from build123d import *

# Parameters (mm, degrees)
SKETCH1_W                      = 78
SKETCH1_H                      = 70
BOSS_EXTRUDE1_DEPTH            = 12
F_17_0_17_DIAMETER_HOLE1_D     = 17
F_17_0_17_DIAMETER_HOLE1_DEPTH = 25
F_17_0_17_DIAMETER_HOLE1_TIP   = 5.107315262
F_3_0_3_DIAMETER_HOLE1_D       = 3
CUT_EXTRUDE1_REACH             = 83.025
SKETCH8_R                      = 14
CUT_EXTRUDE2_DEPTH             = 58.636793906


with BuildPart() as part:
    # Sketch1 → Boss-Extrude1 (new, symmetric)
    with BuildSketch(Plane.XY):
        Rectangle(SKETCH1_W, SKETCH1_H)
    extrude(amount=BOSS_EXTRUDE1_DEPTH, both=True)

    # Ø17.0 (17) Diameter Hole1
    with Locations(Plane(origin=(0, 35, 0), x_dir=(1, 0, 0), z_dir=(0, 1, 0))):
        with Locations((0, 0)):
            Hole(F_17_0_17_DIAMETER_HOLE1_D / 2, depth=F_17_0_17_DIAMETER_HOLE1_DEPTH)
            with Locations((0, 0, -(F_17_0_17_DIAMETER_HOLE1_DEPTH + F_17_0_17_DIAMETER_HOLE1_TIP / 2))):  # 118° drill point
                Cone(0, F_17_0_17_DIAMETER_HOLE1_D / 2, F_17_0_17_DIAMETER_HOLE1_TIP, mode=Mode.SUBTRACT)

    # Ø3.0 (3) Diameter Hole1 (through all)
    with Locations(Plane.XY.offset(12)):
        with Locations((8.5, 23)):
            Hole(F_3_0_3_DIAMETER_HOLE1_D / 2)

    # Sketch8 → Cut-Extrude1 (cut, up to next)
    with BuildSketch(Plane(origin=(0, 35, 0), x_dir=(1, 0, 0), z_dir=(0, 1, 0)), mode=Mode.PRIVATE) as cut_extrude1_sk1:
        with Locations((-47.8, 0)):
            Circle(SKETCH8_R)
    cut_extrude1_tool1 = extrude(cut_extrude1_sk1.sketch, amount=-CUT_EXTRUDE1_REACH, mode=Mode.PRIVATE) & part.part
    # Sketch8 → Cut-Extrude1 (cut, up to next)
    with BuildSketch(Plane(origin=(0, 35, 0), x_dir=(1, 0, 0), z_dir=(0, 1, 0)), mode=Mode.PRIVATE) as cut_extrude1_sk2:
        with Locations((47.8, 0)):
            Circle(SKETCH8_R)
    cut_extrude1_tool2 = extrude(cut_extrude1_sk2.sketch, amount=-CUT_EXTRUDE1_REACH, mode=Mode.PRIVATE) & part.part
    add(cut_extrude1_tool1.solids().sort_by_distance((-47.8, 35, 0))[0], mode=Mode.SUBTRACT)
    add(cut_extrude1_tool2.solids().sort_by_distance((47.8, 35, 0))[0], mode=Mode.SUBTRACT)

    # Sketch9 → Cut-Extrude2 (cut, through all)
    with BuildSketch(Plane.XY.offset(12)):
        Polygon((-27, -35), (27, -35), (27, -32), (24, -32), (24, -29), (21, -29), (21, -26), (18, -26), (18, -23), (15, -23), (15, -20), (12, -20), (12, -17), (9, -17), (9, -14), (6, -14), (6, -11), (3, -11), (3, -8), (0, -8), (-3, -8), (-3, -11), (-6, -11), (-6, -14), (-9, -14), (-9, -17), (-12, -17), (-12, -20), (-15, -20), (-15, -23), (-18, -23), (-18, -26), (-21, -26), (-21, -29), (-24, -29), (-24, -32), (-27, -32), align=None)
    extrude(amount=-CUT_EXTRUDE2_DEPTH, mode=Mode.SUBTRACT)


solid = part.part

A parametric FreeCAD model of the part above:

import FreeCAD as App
import Part
import Sketcher
from FreeCAD import Vector
Q = App.Units.Quantity

doc = App.newDocument("Part")
params = doc.addObject("Spreadsheet::Sheet", "Params")
for row, (alias, value) in enumerate([
    ("sketch1_width", "78 mm"),
    ("sketch1_height", "70 mm"),
    ("pad1_length", "24 mm"),
    ("sketch2_diameter", "17 mm"),
    ("hole_diameter", "17 mm"),
    ("hole_depth", "25 mm"),
    ("sketch3_diameter", "3 mm"),
    ("hole2_diameter", "3 mm"),
    ("sketch4_diameter", "28 mm"),
    ("pocket1_length", "70 mm"),
    ("sketch5_diameter", "28 mm"),
    ("pocket2_length", "70 mm"),
    ("sketch6_width", "54 mm"),
    ("sketch6_width2", "3 mm"),
], start=1):
    params.set(f"A{row}", alias)
    params.set(f"B{row}", "=" + value)
    params.setAlias(f"B{row}", alias)

body = doc.addObject("PartDesign::Body", "Body")

sketch1 = body.newObject("Sketcher::SketchObject", "Sketch")
sketch1.AttachmentSupport = (doc.getObject("XY_Plane"), [""])
sketch1.MapMode = "FlatFace"
sketch1.addGeometry([
    Part.LineSegment(Vector(-39, 35, 0), Vector(-39, -35, 0)),
    Part.LineSegment(Vector(-39, -35, 0), Vector(39, -35, 0)),
    Part.LineSegment(Vector(39, -35, 0), Vector(39, 35, 0)),
    Part.LineSegment(Vector(39, 35, 0), Vector(-39, 35, 0)),
], False)
sketch1.addConstraint([
    Sketcher.Constraint("Coincident", 0, 2, 1, 1),
    Sketcher.Constraint("Coincident", 1, 2, 2, 1),
    Sketcher.Constraint("Coincident", 2, 2, 3, 1),
    Sketcher.Constraint("Coincident", 3, 2, 0, 1),
    Sketcher.Constraint("Vertical", 0),
    Sketcher.Constraint("Horizontal", 1),
    Sketcher.Constraint("Vertical", 2),
    Sketcher.Constraint("Horizontal", 3),
    Sketcher.Constraint("Symmetric", 0, 2, 2, 2, -1, 1),
    Sketcher.Constraint("DistanceX", 1, 1, 1, 2, Q("78 mm")),
    Sketcher.Constraint("DistanceY", 0, 2, 0, 1, Q("70 mm")),
])
sketch1.setExpression("Constraints[9]", "Params.sketch1_width")
sketch1.setExpression("Constraints[10]", "Params.sketch1_height")
pad1 = body.newObject("PartDesign::Pad", "Pad")
pad1.Profile = sketch1
pad1.setExpression("Length", "Params.pad1_length")
pad1.Midplane = True

sketch2 = body.newObject("Sketcher::SketchObject", "Sketch001")
sketch2.AttachmentSupport = (doc.getObject("XZ_Plane"), [""])
sketch2.MapMode = "FlatFace"
sketch2.AttachmentOffset = App.Placement(Vector(0, 0, -35), App.Rotation())
sketch2.addGeometry(Part.Circle(Vector(0, 0, 0), Vector(0, 0, 1), 8), False)
sketch2.addConstraint([
    Sketcher.Constraint("Coincident", 0, 3, -1, 1),
    Sketcher.Constraint("Diameter", 0, Q("17 mm")),
])
sketch2.setExpression("Constraints[1]", "Params.sketch2_diameter")
doc.recompute()
hole = body.newObject("PartDesign::Hole", "Hole")
hole.Profile = sketch2
hole.ThreadType = "None"
hole.setExpression("Diameter", "Params.hole_diameter")
hole.DepthType = "Dimension"
hole.setExpression("Depth", "Params.hole_depth")
hole.DrillPoint = "Angled"
hole.DrillPointAngle = 118
hole.Reversed = True

sketch3 = body.newObject("Sketcher::SketchObject", "Sketch002")
sketch3.AttachmentSupport = (doc.getObject("XY_Plane"), [""])
sketch3.MapMode = "FlatFace"
sketch3.AttachmentOffset = App.Placement(Vector(0, 0, 12), App.Rotation())
sketch3.addGeometry(Part.Circle(Vector(8.5, 23, 0), Vector(0, 0, 1), 1.5), False)
sketch3.addConstraint([
    Sketcher.Constraint("Diameter", 0, Q("3 mm")),
    Sketcher.Constraint("DistanceY", -1, 1, 0, 3, Q("23 mm")),
    Sketcher.Constraint("DistanceX", -1, 1, 0, 3, Q("8.5 mm")),
])
sketch3.setExpression("Constraints[0]", "Params.sketch3_diameter")
doc.recompute()
hole2 = body.newObject("PartDesign::Hole", "Hole001")
hole2.Profile = sketch3
hole2.ThreadType = "None"
hole2.setExpression("Diameter", "Params.hole2_diameter")
hole2.DepthType = "ThroughAll"

sketch4 = body.newObject("Sketcher::SketchObject", "Sketch003")
sketch4.AttachmentSupport = (doc.getObject("XZ_Plane"), [""])
sketch4.MapMode = "FlatFace"
sketch4.AttachmentOffset = App.Placement(Vector(0, 0, -35), App.Rotation())
sketch4.addGeometry(Part.Circle(Vector(-48, 0, 0), Vector(0, 0, 1), 14), False)
sketch4.addConstraint([
    Sketcher.Constraint("PointOnObject", 0, 3, -1),
    Sketcher.Constraint("Diameter", 0, Q("28 mm")),
    Sketcher.Constraint("DistanceX", 0, 3, -1, 1, Q("47.8 mm")),
])
sketch4.setExpression("Constraints[1]", "Params.sketch4_diameter")
pocket1 = body.newObject("PartDesign::Pocket", "Pocket")
pocket1.Profile = sketch4
pocket1.setExpression("Length", "Params.pocket1_length")
pocket1.Reversed = True

sketch5 = body.newObject("Sketcher::SketchObject", "Sketch004")
sketch5.AttachmentSupport = (doc.getObject("XZ_Plane"), [""])
sketch5.MapMode = "FlatFace"
sketch5.AttachmentOffset = App.Placement(Vector(0, 0, -35), App.Rotation())
sketch5.addGeometry(Part.Circle(Vector(48, 0, 0), Vector(0, 0, 1), 14), False)
sketch5.addConstraint([
    Sketcher.Constraint("PointOnObject", 0, 3, -1),
    Sketcher.Constraint("Diameter", 0, Q("28 mm")),
    Sketcher.Constraint("DistanceX", -1, 1, 0, 3, Q("47.8 mm")),
])
sketch5.setExpression("Constraints[1]", "Params.sketch5_diameter")
pocket2 = body.newObject("PartDesign::Pocket", "Pocket001")
pocket2.Profile = sketch5
pocket2.setExpression("Length", "Params.pocket2_length")
pocket2.Reversed = True

sketch6 = body.newObject("Sketcher::SketchObject", "Sketch005")
sketch6.AttachmentSupport = (doc.getObject("XY_Plane"), [""])
sketch6.MapMode = "FlatFace"
sketch6.AttachmentOffset = App.Placement(Vector(0, 0, 12), App.Rotation())
sketch6.addGeometry([
    Part.LineSegment(Vector(-27, -35, 0), Vector(27, -35, 0)),
    Part.LineSegment(Vector(27, -35, 0), Vector(27, -32, 0)),
    Part.LineSegment(Vector(27, -32, 0), Vector(24, -32, 0)),
    Part.LineSegment(Vector(24, -32, 0), Vector(24, -29, 0)),
    Part.LineSegment(Vector(24, -29, 0), Vector(21, -29, 0)),
    Part.LineSegment(Vector(21, -29, 0), Vector(21, -26, 0)),
    Part.LineSegment(Vector(21, -26, 0), Vector(18, -26, 0)),
    Part.LineSegment(Vector(18, -26, 0), Vector(18, -23, 0)),
    Part.LineSegment(Vector(18, -23, 0), Vector(15, -23, 0)),
    Part.LineSegment(Vector(15, -23, 0), Vector(15, -20, 0)),
    Part.LineSegment(Vector(15, -20, 0), Vector(12, -20, 0)),
    Part.LineSegment(Vector(12, -20, 0), Vector(12, -17, 0)),
    Part.LineSegment(Vector(12, -17, 0), Vector(9, -17, 0)),
    Part.LineSegment(Vector(9, -17, 0), Vector(9, -14, 0)),
    Part.LineSegment(Vector(9, -14, 0), Vector(6, -14, 0)),
    Part.LineSegment(Vector(6, -14, 0), Vector(6, -11, 0)),
    Part.LineSegment(Vector(6, -11, 0), Vector(3, -11, 0)),
    Part.LineSegment(Vector(3, -11, 0), Vector(3, -8, 0)),
    Part.LineSegment(Vector(3, -8, 0), Vector(-3, -8, 0)),
    Part.LineSegment(Vector(-3, -8, 0), Vector(-3, -11, 0)),
    Part.LineSegment(Vector(-3, -11, 0), Vector(-6, -11, 0)),
    Part.LineSegment(Vector(-6, -11, 0), Vector(-6, -14, 0)),
    Part.LineSegment(Vector(-6, -14, 0), Vector(-9, -14, 0)),
    Part.LineSegment(Vector(-9, -14, 0), Vector(-9, -17, 0)),
    Part.LineSegment(Vector(-9, -17, 0), Vector(-12, -17, 0)),
    Part.LineSegment(Vector(-12, -17, 0), Vector(-12, -20, 0)),
    Part.LineSegment(Vector(-12, -20, 0), Vector(-15, -20, 0)),
    Part.LineSegment(Vector(-15, -20, 0), Vector(-15, -23, 0)),
    Part.LineSegment(Vector(-15, -23, 0), Vector(-18, -23, 0)),
    Part.LineSegment(Vector(-18, -23, 0), Vector(-18, -26, 0)),
    Part.LineSegment(Vector(-18, -26, 0), Vector(-21, -26, 0)),
    Part.LineSegment(Vector(-21, -26, 0), Vector(-21, -29, 0)),
    Part.LineSegment(Vector(-21, -29, 0), Vector(-24, -29, 0)),
    Part.LineSegment(Vector(-24, -29, 0), Vector(-24, -32, 0)),
    Part.LineSegment(Vector(-24, -32, 0), Vector(-27, -32, 0)),
    Part.LineSegment(Vector(-27, -32, 0), Vector(-27, -35, 0)),
], False)
sketch6.addConstraint([
    Sketcher.Constraint("Coincident", 0, 2, 1, 1),
    Sketcher.Constraint("Coincident", 1, 2, 2, 1),
    Sketcher.Constraint("Coincident", 2, 2, 3, 1),
    Sketcher.Constraint("Coincident", 3, 2, 4, 1),
    Sketcher.Constraint("Coincident", 4, 2, 5, 1),
    Sketcher.Constraint("Coincident", 5, 2, 6, 1),
    Sketcher.Constraint("Coincident", 6, 2, 7, 1),
    Sketcher.Constraint("Coincident", 7, 2, 8, 1),
    Sketcher.Constraint("Coincident", 8, 2, 9, 1),
    Sketcher.Constraint("Coincident", 9, 2, 10, 1),
    Sketcher.Constraint("Coincident", 10, 2, 11, 1),
    Sketcher.Constraint("Coincident", 11, 2, 12, 1),
    Sketcher.Constraint("Coincident", 12, 2, 13, 1),
    Sketcher.Constraint("Coincident", 13, 2, 14, 1),
    Sketcher.Constraint("Coincident", 14, 2, 15, 1),
    Sketcher.Constraint("Coincident", 15, 2, 16, 1),
    Sketcher.Constraint("Coincident", 16, 2, 17, 1),
    Sketcher.Constraint("Coincident", 17, 2, 18, 1),
    Sketcher.Constraint("Coincident", 18, 2, 19, 1),
    Sketcher.Constraint("Coincident", 19, 2, 20, 1),
    Sketcher.Constraint("Coincident", 20, 2, 21, 1),
    Sketcher.Constraint("Coincident", 21, 2, 22, 1),
    Sketcher.Constraint("Coincident", 22, 2, 23, 1),
    Sketcher.Constraint("Coincident", 23, 2, 24, 1),
    Sketcher.Constraint("Coincident", 24, 2, 25, 1),
    Sketcher.Constraint("Coincident", 25, 2, 26, 1),
    Sketcher.Constraint("Coincident", 26, 2, 27, 1),
    Sketcher.Constraint("Coincident", 27, 2, 28, 1),
    Sketcher.Constraint("Coincident", 28, 2, 29, 1),
    Sketcher.Constraint("Coincident", 29, 2, 30, 1),
    Sketcher.Constraint("Coincident", 30, 2, 31, 1),
    Sketcher.Constraint("Coincident", 31, 2, 32, 1),
    Sketcher.Constraint("Coincident", 32, 2, 33, 1),
    Sketcher.Constraint("Coincident", 33, 2, 34, 1),
    Sketcher.Constraint("Coincident", 34, 2, 35, 1),
    Sketcher.Constraint("Coincident", 35, 2, 0, 1),
    Sketcher.Constraint("Horizontal", 0),
    Sketcher.Constraint("Vertical", 1),
    Sketcher.Constraint("Horizontal", 2),
    Sketcher.Constraint("Vertical", 3),
    Sketcher.Constraint("Horizontal", 4),
    Sketcher.Constraint("Vertical", 5),
    Sketcher.Constraint("Horizontal", 6),
    Sketcher.Constraint("Vertical", 7),
    Sketcher.Constraint("Horizontal", 8),
    Sketcher.Constraint("Vertical", 9),
    Sketcher.Constraint("Horizontal", 10),
    Sketcher.Constraint("Vertical", 11),
    Sketcher.Constraint("Horizontal", 12),
    Sketcher.Constraint("Vertical", 13),
    Sketcher.Constraint("Horizontal", 14),
    Sketcher.Constraint("Vertical", 15),
    Sketcher.Constraint("Horizontal", 16),
    Sketcher.Constraint("Vertical", 17),
    Sketcher.Constraint("Horizontal", 18),
    Sketcher.Constraint("Vertical", 19),
    Sketcher.Constraint("Horizontal", 20),
    Sketcher.Constraint("Vertical", 21),
    Sketcher.Constraint("Horizontal", 22),
    Sketcher.Constraint("Vertical", 23),
    Sketcher.Constraint("Horizontal", 24),
    Sketcher.Constraint("Vertical", 25),
    Sketcher.Constraint("Horizontal", 26),
    Sketcher.Constraint("Vertical", 27),
    Sketcher.Constraint("Horizontal", 28),
    Sketcher.Constraint("Vertical", 29),
    Sketcher.Constraint("Horizontal", 30),
    Sketcher.Constraint("Vertical", 31),
    Sketcher.Constraint("Horizontal", 32),
    Sketcher.Constraint("Vertical", 33),
    Sketcher.Constraint("Horizontal", 34),
    Sketcher.Constraint("Vertical", 35),
    Sketcher.Constraint("Symmetric", 16, 2, 19, 2, -2),
    Sketcher.Constraint("Symmetric", 14, 2, 21, 2, -2),
    Sketcher.Constraint("Symmetric", 12, 2, 23, 2, -2),
    Sketcher.Constraint("Symmetric", 10, 2, 25, 2, -2),
    Sketcher.Constraint("Symmetric", 8, 2, 27, 2, -2),
    Sketcher.Constraint("Symmetric", 6, 2, 29, 2, -2),
    Sketcher.Constraint("Symmetric", 4, 2, 31, 2, -2),
    Sketcher.Constraint("Symmetric", 2, 2, 33, 2, -2),
    Sketcher.Constraint("Equal", 2, 4),
    Sketcher.Constraint("Equal", 4, 6),
    Sketcher.Constraint("Equal", 6, 8),
    Sketcher.Constraint("Equal", 8, 10),
    Sketcher.Constraint("Equal", 10, 12),
    Sketcher.Constraint("Equal", 12, 14),
    Sketcher.Constraint("Equal", 14, 16),
    Sketcher.Constraint("Equal", 32, 34),
    Sketcher.Constraint("Equal", 34, 1),
    Sketcher.Constraint("Equal", 1, 3),
    Sketcher.Constraint("Equal", 3, 5),
    Sketcher.Constraint("Equal", 5, 7),
    Sketcher.Constraint("Equal", 7, 9),
    Sketcher.Constraint("Equal", 9, 11),
    Sketcher.Constraint("Equal", 11, 13),
    Sketcher.Constraint("Equal", 13, 15),
    Sketcher.Constraint("Equal", 15, 17),
    Sketcher.Constraint("DistanceX", 0, 1, 0, 2, Q("54 mm")),
    Sketcher.Constraint("DistanceX", 2, 2, 2, 1, Q("3 mm")),
    Sketcher.Constraint("DistanceY", 0, 2, -1, 1, Q("35 mm")),
])
sketch6.setExpression("Constraints[97]", "Params.sketch6_width")
sketch6.setExpression("Constraints[98]", "Params.sketch6_width2")
pocket3 = body.newObject("PartDesign::Pocket", "Pocket002")
pocket3.Profile = sketch6
pocket3.Type = "ThroughAll"

doc.recompute()
